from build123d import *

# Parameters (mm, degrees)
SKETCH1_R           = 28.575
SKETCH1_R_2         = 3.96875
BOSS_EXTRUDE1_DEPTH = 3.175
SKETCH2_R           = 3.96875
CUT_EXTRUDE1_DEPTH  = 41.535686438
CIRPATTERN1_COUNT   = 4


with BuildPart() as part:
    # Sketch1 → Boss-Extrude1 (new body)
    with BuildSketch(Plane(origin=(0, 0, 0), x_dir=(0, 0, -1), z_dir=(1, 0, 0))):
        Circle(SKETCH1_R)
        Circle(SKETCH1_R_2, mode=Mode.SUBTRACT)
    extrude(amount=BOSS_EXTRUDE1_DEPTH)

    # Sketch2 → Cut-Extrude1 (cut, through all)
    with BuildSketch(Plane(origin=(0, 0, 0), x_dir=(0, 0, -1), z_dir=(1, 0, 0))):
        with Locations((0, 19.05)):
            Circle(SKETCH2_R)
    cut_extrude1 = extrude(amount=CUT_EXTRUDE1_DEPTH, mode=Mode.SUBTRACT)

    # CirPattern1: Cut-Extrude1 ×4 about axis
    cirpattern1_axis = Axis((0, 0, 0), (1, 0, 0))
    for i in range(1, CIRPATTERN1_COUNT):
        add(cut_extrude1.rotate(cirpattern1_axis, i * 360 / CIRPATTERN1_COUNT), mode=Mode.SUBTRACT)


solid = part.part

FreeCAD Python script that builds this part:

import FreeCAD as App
import Part
import Sketcher
from FreeCAD import Vector
Q = App.Units.Quantity

doc = App.newDocument("Part")
params = doc.addObject("Spreadsheet::Sheet", "Params")
for row, (alias, value) in enumerate([
    ("sketch1_diameter", "2.25 in"),
    ("sketch1_diameter2", "0.3125 in"),
    ("pad1_length", "0.125 in"),
    ("sketch2_diameter", "0.3125 in"),
], start=1):
    params.set(f"A{row}", alias)
    params.set(f"B{row}", "=" + value)
    params.setAlias(f"B{row}", alias)

body = doc.addObject("PartDesign::Body", "Body")

sketch1 = body.newObject("Sketcher::SketchObject", "Sketch")
sketch1.AttachmentSupport = (doc.getObject("YZ_Plane"), [""])
sketch1.MapMode = "FlatFace"
sketch1.addGeometry([
    Part.Circle(Vector(0, 0, 0), Vector(0, 0, 1), 28.575),
    Part.Circle(Vector(0, 0, 0), Vector(0, 0, 1), 3.96875),
], False)
sketch1.addConstraint([
    Sketcher.Constraint("Coincident", 0, 3, -1, 1),
    Sketcher.Constraint("Coincident", 1, 3, -1, 1),
    Sketcher.Constraint("Diameter", 0, Q("2.25 in")),
    Sketcher.Constraint("Diameter", 1, Q("0.3125 in")),
])
sketch1.setExpression("Constraints[2]", "Params.sketch1_diameter")
sketch1.setExpression("Constraints[3]", "Params.sketch1_diameter2")
pad1 = body.newObject("PartDesign::Pad", "Pad")
pad1.Profile = sketch1
pad1.setExpression("Length", "Params.pad1_length")

sketch2 = body.newObject("Sketcher::SketchObject", "Sketch001")
sketch2.AttachmentSupport = (doc.getObject("YZ_Plane"), [""])
sketch2.MapMode = "FlatFace"
sketch2.addGeometry(Part.Circle(Vector(19.05, 0, 0), Vector(0, 0, 1), 3.96875), False)
sketch2.addConstraint([
    Sketcher.Constraint("PointOnObject", 0, 3, -1),
    Sketcher.Constraint("Diameter", 0, Q("0.3125 in")),
    Sketcher.Constraint("DistanceX", -1, 1, 0, 3, Q("0.75 in")),
])
sketch2.setExpression("Constraints[1]", "Params.sketch2_diameter")
pocket1 = body.newObject("PartDesign::Pocket", "Pocket")
pocket1.Profile = sketch2
pocket1.Type = "ThroughAll"
pocket1.Reversed = True
doc.recompute()

polarpattern = body.newObject("PartDesign::PolarPattern", "PolarPattern")
polarpattern.Originals = [pocket1]
polarpattern.Axis = (doc.getObject("X_Axis"), [""])
polarpattern.Angle = 360
polarpattern.Occurrences = 4
body.Tip = polarpattern

doc.recompute()
